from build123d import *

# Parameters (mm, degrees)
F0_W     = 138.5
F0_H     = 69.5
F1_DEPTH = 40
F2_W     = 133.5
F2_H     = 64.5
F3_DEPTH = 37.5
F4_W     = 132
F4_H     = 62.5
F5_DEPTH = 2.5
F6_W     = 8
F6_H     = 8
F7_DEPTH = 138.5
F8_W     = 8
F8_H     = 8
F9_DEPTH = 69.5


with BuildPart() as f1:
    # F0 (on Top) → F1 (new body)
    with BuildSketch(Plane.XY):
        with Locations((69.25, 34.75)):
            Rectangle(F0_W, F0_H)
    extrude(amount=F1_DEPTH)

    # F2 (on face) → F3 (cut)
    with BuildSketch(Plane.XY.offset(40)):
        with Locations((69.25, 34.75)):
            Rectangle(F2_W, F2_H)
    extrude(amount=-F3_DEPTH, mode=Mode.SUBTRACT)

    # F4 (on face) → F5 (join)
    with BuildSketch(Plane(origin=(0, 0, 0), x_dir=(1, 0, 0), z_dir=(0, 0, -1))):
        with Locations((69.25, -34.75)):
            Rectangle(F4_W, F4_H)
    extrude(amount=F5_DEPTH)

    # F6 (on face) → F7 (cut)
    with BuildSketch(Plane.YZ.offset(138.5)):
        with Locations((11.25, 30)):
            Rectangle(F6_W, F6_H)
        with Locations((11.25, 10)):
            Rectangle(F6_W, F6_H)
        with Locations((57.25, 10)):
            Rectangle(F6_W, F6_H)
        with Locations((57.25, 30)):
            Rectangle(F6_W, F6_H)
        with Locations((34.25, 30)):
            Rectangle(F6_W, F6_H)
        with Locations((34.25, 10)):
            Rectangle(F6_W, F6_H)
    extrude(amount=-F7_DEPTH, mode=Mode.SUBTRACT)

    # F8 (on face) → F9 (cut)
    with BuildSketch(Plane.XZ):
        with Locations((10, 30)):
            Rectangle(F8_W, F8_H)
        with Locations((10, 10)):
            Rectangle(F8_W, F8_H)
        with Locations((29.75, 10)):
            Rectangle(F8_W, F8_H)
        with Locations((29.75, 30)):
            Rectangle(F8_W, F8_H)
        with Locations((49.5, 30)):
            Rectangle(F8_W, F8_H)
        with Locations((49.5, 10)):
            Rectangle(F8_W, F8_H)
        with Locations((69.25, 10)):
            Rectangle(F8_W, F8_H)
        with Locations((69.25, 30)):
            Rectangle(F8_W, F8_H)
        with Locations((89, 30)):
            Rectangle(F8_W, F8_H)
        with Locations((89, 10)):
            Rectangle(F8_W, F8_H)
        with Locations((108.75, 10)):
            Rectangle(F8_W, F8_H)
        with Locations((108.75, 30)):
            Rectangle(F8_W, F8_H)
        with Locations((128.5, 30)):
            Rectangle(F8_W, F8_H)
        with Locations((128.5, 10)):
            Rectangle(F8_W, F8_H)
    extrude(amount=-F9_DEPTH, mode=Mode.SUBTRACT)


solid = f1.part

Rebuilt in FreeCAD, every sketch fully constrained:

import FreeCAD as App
import Part
import Sketcher

doc = App.newDocument("Part")
body = doc.addObject("PartDesign::Body", "Body")

sketch1 = body.newObject("Sketcher::SketchObject", "Sketch")
sketch1.AttachmentSupport = (doc.getObject("XY_Plane"), [""])
sketch1.MapMode = "FlatFace"
sketch1.addGeometry([
    Part.LineSegment(App.Vector(0, 70, 0), App.Vector(0, 0, 0)),
    Part.LineSegment(App.Vector(0, 0, 0), App.Vector(138, 0, 0)),
    Part.LineSegment(App.Vector(138, 0, 0), App.Vector(138, 70, 0)),
    Part.LineSegment(App.Vector(138, 70, 0), App.Vector(0, 70, 0)),
], False)
sketch1.addConstraint([
    Sketcher.Constraint("Coincident", 0, 2, 1, 1),
    Sketcher.Constraint("Coincident", 1, 2, 2, 1),
    Sketcher.Constraint("Coincident", 2, 2, 3, 1),
    Sketcher.Constraint("Coincident", 3, 2, 0, 1),
    Sketcher.Constraint("Vertical", 0),
    Sketcher.Constraint("Horizontal", 1),
    Sketcher.Constraint("Vertical", 2),
    Sketcher.Constraint("Horizontal", 3),
    Sketcher.Constraint("Coincident", 0, 2, -1, 1),
    Sketcher.Constraint("DistanceX", 1, 1, 1, 2, 138.5),
    Sketcher.Constraint("DistanceY", 0, 2, 0, 1, 69.5),
])
pad1 = body.newObject("PartDesign::Pad", "Pad")
pad1.Profile = sketch1
pad1.Length = 40

sketch2 = body.newObject("Sketcher::SketchObject", "Sketch001")
sketch2.AttachmentSupport = (doc.getObject("XY_Plane"), [""])
sketch2.MapMode = "FlatFace"
sketch2.AttachmentOffset = App.Placement(App.Vector(0, 0, 40), App.Rotation())
sketch2.addGeometry([
    Part.LineSegment(App.Vector(2, 67, 0), App.Vector(2, 2, 0)),
    Part.LineSegment(App.Vector(2, 2, 0), App.Vector(136, 2, 0)),
    Part.LineSegment(App.Vector(136, 2, 0), App.Vector(136, 67, 0)),
    Part.LineSegment(App.Vector(136, 67, 0), App.Vector(2, 67, 0)),
], False)
sketch2.addConstraint([
    Sketcher.Constraint("Coincident", 0, 2, 1, 1),
    Sketcher.Constraint("Coincident", 1, 2, 2, 1),
    Sketcher.Constraint("Coincident", 2, 2, 3, 1),
    Sketcher.Constraint("Coincident", 3, 2, 0, 1),
    Sketcher.Constraint("Vertical", 0),
    Sketcher.Constraint("Horizontal", 1),
    Sketcher.Constraint("Vertical", 2),
    Sketcher.Constraint("Horizontal", 3),
    Sketcher.Constraint("DistanceX", 1, 1, 1, 2, 133.5),
    Sketcher.Constraint("DistanceY", 0, 2, 0, 1, 64.5),
    Sketcher.Constraint("DistanceX", -1, 1, 1, 2, 136.0),
    Sketcher.Constraint("DistanceY", -1, 1, 2, 2, 67.0),
])
pocket1 = body.newObject("PartDesign::Pocket", "Pocket")
pocket1.Profile = sketch2
pocket1.Length = 37.5

sketch3 = body.newObject("Sketcher::SketchObject", "Sketch002")
sketch3.AttachmentSupport = (doc.getObject("XY_Plane"), [""])
sketch3.MapMode = "FlatFace"
sketch3.addGeometry([
    Part.LineSegment(App.Vector(3, 4, 0), App.Vector(3, 66, 0)),
    Part.LineSegment(App.Vector(3, 66, 0), App.Vector(135, 66, 0)),
    Part.LineSegment(App.Vector(135, 66, 0), App.Vector(135, 4, 0)),
    Part.LineSegment(App.Vector(135, 4, 0), App.Vector(3, 4, 0)),
], False)
sketch3.addConstraint([
    Sketcher.Constraint("Coincident", 0, 2, 1, 1),
    Sketcher.Constraint("Coincident", 1, 2, 2, 1),
    Sketcher.Constraint("Coincident", 2, 2, 3, 1),
    Sketcher.Constraint("Coincident", 3, 2, 0, 1),
    Sketcher.Constraint("Vertical", 0),
    Sketcher.Constraint("Horizontal", 1),
    Sketcher.Constraint("Vertical", 2),
    Sketcher.Constraint("Horizontal", 3),
    Sketcher.Constraint("DistanceX", 1, 1, 1, 2, 132.0),
    Sketcher.Constraint("DistanceY", 0, 1, 0, 2, 62.5),
    Sketcher.Constraint("DistanceY", -1, 1, 0, 2, 66.0),
    Sketcher.Constraint("DistanceX", -1, 1, 0, 2, 3.25),
])
pad2 = body.newObject("PartDesign::Pad", "Pad001")
pad2.Profile = sketch3
pad2.Length = 2.5
pad2.Reversed = True

sketch4 = body.newObject("Sketcher::SketchObject", "Sketch003")
sketch4.AttachmentSupport = (doc.getObject("YZ_Plane"), [""])
sketch4.MapMode = "FlatFace"
sketch4.AttachmentOffset = App.Placement(App.Vector(0, 0, 138.5), App.Rotation())
sketch4.addGeometry([
    Part.LineSegment(App.Vector(7, 34, 0), App.Vector(7, 26, 0)),
    Part.LineSegment(App.Vector(7, 26, 0), App.Vector(15, 26, 0)),
    Part.LineSegment(App.Vector(15, 26, 0), App.Vector(15, 34, 0)),
    Part.LineSegment(App.Vector(15, 34, 0), App.Vector(7, 34, 0)),
    Part.LineSegment(App.Vector(7, 14, 0), App.Vector(7, 6, 0)),
    Part.LineSegment(App.Vector(7, 6, 0), App.Vector(15, 6, 0)),
    Part.LineSegment(App.Vector(15, 6, 0), App.Vector(15, 14, 0)),
    Part.LineSegment(App.Vector(15, 14, 0), App.Vector(7, 14, 0)),
    Part.LineSegment(App.Vector(53, 14, 0), App.Vector(53, 6, 0)),
    Part.LineSegment(App.Vector(53, 6, 0), App.Vector(61, 6, 0)),
    Part.LineSegment(App.Vector(61, 6, 0), App.Vector(61, 14, 0)),
    Part.LineSegment(App.Vector(61, 14, 0), App.Vector(53, 14, 0)),
    Part.LineSegment(App.Vector(53, 34, 0), App.Vector(53, 26, 0)),
    Part.LineSegment(App.Vector(53, 26, 0), App.Vector(61, 26, 0)),
    Part.LineSegment(App.Vector(61, 26, 0), App.Vector(61, 34, 0)),
    Part.LineSegment(App.Vector(61, 34, 0), App.Vector(53, 34, 0)),
    Part.LineSegment(App.Vector(30, 34, 0), App.Vector(30, 26, 0)),
    Part.LineSegment(App.Vector(30, 26, 0), App.Vector(38, 26, 0)),
    Part.LineSegment(App.Vector(38, 26, 0), App.Vector(38, 34, 0)),
    Part.LineSegment(App.Vector(38, 34, 0), App.Vector(30, 34, 0)),
    Part.LineSegment(App.Vector(30, 14, 0), App.Vector(30, 6, 0)),
    Part.LineSegment(App.Vector(30, 6, 0), App.Vector(38, 6, 0)),
    Part.LineSegment(App.Vector(38, 6, 0), App.Vector(38, 14, 0)),
    Part.LineSegment(App.Vector(38, 14, 0), App.Vector(30, 14, 0)),
], False)
sketch4.addConstraint([
    Sketcher.Constraint("Coincident", 0, 2, 1, 1),
    Sketcher.Constraint("Coincident", 1, 2, 2, 1),
    Sketcher.Constraint("Coincident", 2, 2, 3, 1),
    Sketcher.Constraint("Coincident", 3, 2, 0, 1),
    Sketcher.Constraint("Coincident", 4, 2, 5, 1),
    Sketcher.Constraint("Coincident", 5, 2, 6, 1),
    Sketcher.Constraint("Coincident", 6, 2, 7, 1),
    Sketcher.Constraint("Coincident", 7, 2, 4, 1),
    Sketcher.Constraint("Coincident", 8, 2, 9, 1),
    Sketcher.Constraint("Coincident", 9, 2, 10, 1),
    Sketcher.Constraint("Coincident", 10, 2, 11, 1),
    Sketcher.Constraint("Coincident", 11, 2, 8, 1),
    Sketcher.Constraint("Coincident", 12, 2, 13, 1),
    Sketcher.Constraint("Coincident", 13, 2, 14, 1),
    Sketcher.Constraint("Coincident", 14, 2, 15, 1),
    Sketcher.Constraint("Coincident", 15, 2, 12, 1),
    Sketcher.Constraint("Coincident", 16, 2, 17, 1),
    Sketcher.Constraint("Coincident", 17, 2, 18, 1),
    Sketcher.Constraint("Coincident", 18, 2, 19, 1),
    Sketcher.Constraint("Coincident", 19, 2, 16, 1),
    Sketcher.Constraint("Coincident", 20, 2, 21, 1),
    Sketcher.Constraint("Coincident", 21, 2, 22, 1),
    Sketcher.Constraint("Coincident", 22, 2, 23, 1),
    Sketcher.Constraint("Coincident", 23, 2, 20, 1),
    Sketcher.Constraint("Vertical", 0),
    Sketcher.Constraint("Horizontal", 1),
    Sketcher.Constraint("Vertical", 2),
    Sketcher.Constraint("Horizontal", 3),
    Sketcher.Constraint("Vertical", 4),
    Sketcher.Constraint("Horizontal", 5),
    Sketcher.Constraint("Vertical", 6),
    Sketcher.Constraint("Horizontal", 7),
    Sketcher.Constraint("Vertical", 8),
    Sketcher.Constraint("Horizontal", 9),
    Sketcher.Constraint("Vertical", 10),
    Sketcher.Constraint("Horizontal", 11),
    Sketcher.Constraint("Vertical", 12),
    Sketcher.Constraint("Horizontal", 13),
    Sketcher.Constraint("Vertical", 14),
    Sketcher.Constraint("Horizontal", 15),
    Sketcher.Constraint("Vertical", 16),
    Sketcher.Constraint("Horizontal", 17),
    Sketcher.Constraint("Vertical", 18),
    Sketcher.Constraint("Horizontal", 19),
    Sketcher.Constraint("Vertical", 20),
    Sketcher.Constraint("Horizontal", 21),
    Sketcher.Constraint("Vertical", 22),
    Sketcher.Constraint("Horizontal", 23),
    Sketcher.Constraint("Horizontal", 5, 2, 8, 2),
    Sketcher.Constraint("Horizontal", 7, 2, 10, 2),
    Sketcher.Constraint("Horizontal", 1, 2, 12, 2),
    Sketcher.Constraint("Horizontal", 3, 2, 14, 2),
    Sketcher.Constraint("Horizontal", 13, 2, 16, 2),
    Sketcher.Constraint("Horizontal", 15, 2, 18, 2),
    Sketcher.Constraint("Horizontal", 9, 2, 20, 2),
    Sketcher.Constraint("Horizontal", 11, 2, 22, 2),
    Sketcher.Constraint("Vertical", 3, 2, 4, 2),
    Sketcher.Constraint("Vertical", 2, 2, 5, 2),
    Sketcher.Constraint("Vertical", 11, 2, 12, 2),
    Sketcher.Constraint("Vertical", 10, 2, 13, 2),
    Sketcher.Constraint("Vertical", 19, 2, 20, 2),
    Sketcher.Constraint("Vertical", 18, 2, 21, 2),
    Sketcher.Constraint("Equal", 7, 9),
    Sketcher.Constraint("Equal", 15, 17),
    Sketcher.Constraint("Equal", 23, 0),
    Sketcher.Constraint("Equal", 2, 4),
    Sketcher.Constraint("DistanceX", 1, 1, 1, 2, 8.0),
    Sketcher.Constraint("DistanceY", -1, 1, 0, 2, 26.0),
    Sketcher.Constraint("DistanceY", -1, 1, 4, 2, 6.0),
    Sketcher.Constraint("DistanceX", 5, 2, 8, 2, 38.0),
    Sketcher.Constraint("DistanceX", 1, 2, 16, 2, 15.0),
    Sketcher.Constraint("DistanceX", -1, 1, 0, 2, 7.25),
])
pocket2 = body.newObject("PartDesign::Pocket", "Pocket001")
pocket2.Profile = sketch4
pocket2.Length = 138.5

sketch5 = body.newObject("Sketcher::SketchObject", "Sketch004")
sketch5.AttachmentSupport = (doc.getObject("XZ_Plane"), [""])
sketch5.MapMode = "FlatFace"
sketch5.addGeometry([
    Part.LineSegment(App.Vector(6, 34, 0), App.Vector(6, 26, 0)),
    Part.LineSegment(App.Vector(6, 26, 0), App.Vector(14, 26, 0)),
    Part.LineSegment(App.Vector(14, 26, 0), App.Vector(14, 34, 0)),
    Part.LineSegment(App.Vector(14, 34, 0), App.Vector(6, 34, 0)),
    Part.LineSegment(App.Vector(6, 14, 0), App.Vector(6, 6, 0)),
    Part.LineSegment(App.Vector(6, 6, 0), App.Vector(14, 6, 0)),
    Part.LineSegment(App.Vector(14, 6, 0), App.Vector(14, 14, 0)),
    Part.LineSegment(App.Vector(14, 14, 0), App.Vector(6, 14, 0)),
    Part.LineSegment(App.Vector(26, 14, 0), App.Vector(26, 6, 0)),
    Part.LineSegment(App.Vector(26, 6, 0), App.Vector(34, 6, 0)),
    Part.LineSegment(App.Vector(34, 6, 0), App.Vector(34, 14, 0)),
    Part.LineSegment(App.Vector(34, 14, 0), App.Vector(26, 14, 0)),
    Part.LineSegment(App.Vector(26, 34, 0), App.Vector(26, 26, 0)),
    Part.LineSegment(App.Vector(26, 26, 0), App.Vector(34, 26, 0)),
    Part.LineSegment(App.Vector(34, 26, 0), App.Vector(34, 34, 0)),
    Part.LineSegment(App.Vector(34, 34, 0), App.Vector(26, 34, 0)),
    Part.LineSegment(App.Vector(46, 34, 0), App.Vector(46, 26, 0)),
    Part.LineSegment(App.Vector(46, 26, 0), App.Vector(54, 26, 0)),
    Part.LineSegment(App.Vector(54, 26, 0), App.Vector(54, 34, 0)),
    Part.LineSegment(App.Vector(54, 34, 0), App.Vector(46, 34, 0)),
    Part.LineSegment(App.Vector(46, 14, 0), App.Vector(46, 6, 0)),
    Part.LineSegment(App.Vector(46, 6, 0), App.Vector(54, 6, 0)),
    Part.LineSegment(App.Vector(54, 6, 0), App.Vector(54, 14, 0)),
    Part.LineSegment(App.Vector(54, 14, 0), App.Vector(46, 14, 0)),
    Part.LineSegment(App.Vector(65, 14, 0), App.Vector(65, 6, 0)),
    Part.LineSegment(App.Vector(65, 6, 0), App.Vector(73, 6, 0)),
    Part.LineSegment(App.Vector(73, 6, 0), App.Vector(73, 14, 0)),
    Part.LineSegment(App.Vector(73, 14, 0), App.Vector(65, 14, 0)),
    Part.LineSegment(App.Vector(65, 34, 0), App.Vector(65, 26, 0)),
    Part.LineSegment(App.Vector(65, 26, 0), App.Vector(73, 26, 0)),
    Part.LineSegment(App.Vector(73, 26, 0), App.Vector(73, 34, 0)),
    Part.LineSegment(App.Vector(73, 34, 0), App.Vector(65, 34, 0)),
    Part.LineSegment(App.Vector(85, 34, 0), App.Vector(85, 26, 0)),
    Part.LineSegment(App.Vector(85, 26, 0), App.Vector(93, 26, 0)),
    Part.LineSegment(App.Vector(93, 26, 0), App.Vector(93, 34, 0)),
    Part.LineSegment(App.Vector(93, 34, 0), App.Vector(85, 34, 0)),
    Part.LineSegment(App.Vector(85, 14, 0), App.Vector(85, 6, 0)),
    Part.LineSegment(App.Vector(85, 6, 0), App.Vector(93, 6, 0)),
    Part.LineSegment(App.Vector(93, 6, 0), App.Vector(93, 14, 0)),
    Part.LineSegment(App.Vector(93, 14, 0), App.Vector(85, 14, 0)),
    Part.LineSegment(App.Vector(105, 14, 0), App.Vector(105, 6, 0)),
    Part.LineSegment(App.Vector(105, 6, 0), App.Vector(113, 6, 0)),
    Part.LineSegment(App.Vector(113, 6, 0), App.Vector(113, 14, 0)),
    Part.LineSegment(App.Vector(113, 14, 0), App.Vector(105, 14, 0)),
    Part.LineSegment(App.Vector(105, 34, 0), App.Vector(105, 26, 0)),
    Part.LineSegment(App.Vector(105, 26, 0), App.Vector(113, 26, 0)),
    Part.LineSegment(App.Vector(113, 26, 0), App.Vector(113, 34, 0)),
    Part.LineSegment(App.Vector(113, 34, 0), App.Vector(105, 34, 0)),
    Part.LineSegment(App.Vector(124, 34, 0), App.Vector(124, 26, 0)),
    Part.LineSegment(App.Vector(124, 26, 0), App.Vector(132, 26, 0)),
    Part.LineSegment(App.Vector(132, 26, 0), App.Vector(132, 34, 0)),
    Part.LineSegment(App.Vector(132, 34, 0), App.Vector(124, 34, 0)),
    Part.LineSegment(App.Vector(124, 14, 0), App.Vector(124, 6, 0)),
    Part.LineSegment(App.Vector(124, 6, 0), App.Vector(132, 6, 0)),
    Part.LineSegment(App.Vector(132, 6, 0), App.Vector(132, 14, 0)),
    Part.LineSegment(App.Vector(132, 14, 0), App.Vector(124, 14, 0)),
], False)
sketch5.addConstraint([
    Sketcher.Constraint("Coincident", 0, 2, 1, 1),
    Sketcher.Constraint("Coincident", 1, 2, 2, 1),
    Sketcher.Constraint("Coincident", 2, 2, 3, 1),
    Sketcher.Constraint("Coincident", 3, 2, 0, 1),
    Sketcher.Constraint("Coincident", 4, 2, 5, 1),
    Sketcher.Constraint("Coincident", 5, 2, 6, 1),
    Sketcher.Constraint("Coincident", 6, 2, 7, 1),
    Sketcher.Constraint("Coincident", 7, 2, 4, 1),
    Sketcher.Constraint("Coincident", 8, 2, 9, 1),
    Sketcher.Constraint("Coincident", 9, 2, 10, 1),
    Sketcher.Constraint("Coincident", 10, 2, 11, 1),
    Sketcher.Constraint("Coincident", 11, 2, 8, 1),
    Sketcher.Constraint("Coincident", 12, 2, 13, 1),
    Sketcher.Constraint("Coincident", 13, 2, 14, 1),
    Sketcher.Constraint("Coincident", 14, 2, 15, 1),
    Sketcher.Constraint("Coincident", 15, 2, 12, 1),
    Sketcher.Constraint("Coincident", 16, 2, 17, 1),
    Sketcher.Constraint("Coincident", 17, 2, 18, 1),
    Sketcher.Constraint("Coincident", 18, 2, 19, 1),
    Sketcher.Constraint("Coincident", 19, 2, 16, 1),
    Sketcher.Constraint("Coincident", 20, 2, 21, 1),
    Sketcher.Constraint("Coincident", 21, 2, 22, 1),
    Sketcher.Constraint("Coincident", 22, 2, 23, 1),
    Sketcher.Constraint("Coincident", 23, 2, 20, 1),
    Sketcher.Constraint("Coincident", 24, 2, 25, 1),
    Sketcher.Constraint("Coincident", 25, 2, 26, 1),
    Sketcher.Constraint("Coincident", 26, 2, 27, 1),
    Sketcher.Constraint("Coincident", 27, 2, 24, 1),
    Sketcher.Constraint("Coincident", 28, 2, 29, 1),
    Sketcher.Constraint("Coincident", 29, 2, 30, 1),
    Sketcher.Constraint("Coincident", 30, 2, 31, 1),
    Sketcher.Constraint("Coincident", 31, 2, 28, 1),
    Sketcher.Constraint("Coincident", 32, 2, 33, 1),
    Sketcher.Constraint("Coincident", 33, 2, 34, 1),
    Sketcher.Constraint("Coincident", 34, 2, 35, 1),
    Sketcher.Constraint("Coincident", 35, 2, 32, 1),
    Sketcher.Constraint("Coincident", 36, 2, 37, 1),
    Sketcher.Constraint("Coincident", 37, 2, 38, 1),
    Sketcher.Constraint("Coincident", 38, 2, 39, 1),
    Sketcher.Constraint("Coincident", 39, 2, 36, 1),
    Sketcher.Constraint("Coincident", 40, 2, 41, 1),
    Sketcher.Constraint("Coincident", 41, 2, 42, 1),
    Sketcher.Constraint("Coincident", 42, 2, 43, 1),
    Sketcher.Constraint("Coincident", 43, 2, 40, 1),
    Sketcher.Constraint("Coincident", 44, 2, 45, 1),
    Sketcher.Constraint("Coincident", 45, 2, 46, 1),
    Sketcher.Constraint("Coincident", 46, 2, 47, 1),
    Sketcher.Constraint("Coincident", 47, 2, 44, 1),
    Sketcher.Constraint("Coincident", 48, 2, 49, 1),
    Sketcher.Constraint("Coincident", 49, 2, 50, 1),
    Sketcher.Constraint("Coincident", 50, 2, 51, 1),
    Sketcher.Constraint("Coincident", 51, 2, 48, 1),
    Sketcher.Constraint("Coincident", 52, 2, 53, 1),
    Sketcher.Constraint("Coincident", 53, 2, 54, 1),
    Sketcher.Constraint("Coincident", 54, 2, 55, 1),
    Sketcher.Constraint("Coincident", 55, 2, 52, 1),
    Sketcher.Constraint("Vertical", 0),
    Sketcher.Constraint("Horizontal", 1),
    Sketcher.Constraint("Vertical", 2),
    Sketcher.Constraint("Horizontal", 3),
    Sketcher.Constraint("Vertical", 4),
    Sketcher.Constraint("Horizontal", 5),
    Sketcher.Constraint("Vertical", 6),
    Sketcher.Constraint("Horizontal", 7),
    Sketcher.Constraint("Vertical", 8),
    Sketcher.Constraint("Horizontal", 9),
    Sketcher.Constraint("Vertical", 10),
    Sketcher.Constraint("Horizontal", 11),
    Sketcher.Constraint("Vertical", 12),
    Sketcher.Constraint("Horizontal", 13),
    Sketcher.Constraint("Vertical", 14),
    Sketcher.Constraint("Horizontal", 15),
    Sketcher.Constraint("Vertical", 16),
    Sketcher.Constraint("Horizontal", 17),
    Sketcher.Constraint("Vertical", 18),
    Sketcher.Constraint("Horizontal", 19),
    Sketcher.Constraint("Vertical", 20),
    Sketcher.Constraint("Horizontal", 21),
    Sketcher.Constraint("Vertical", 22),
    Sketcher.Constraint("Horizontal", 23),
    Sketcher.Constraint("Vertical", 24),
    Sketcher.Constraint("Horizontal", 25),
    Sketcher.Constraint("Vertical", 26),
    Sketcher.Constraint("Horizontal", 27),
    Sketcher.Constraint("Vertical", 28),
    Sketcher.Constraint("Horizontal", 29),
    Sketcher.Constraint("Vertical", 30),
    Sketcher.Constraint("Horizontal", 31),
    Sketcher.Constraint("Vertical", 32),
    Sketcher.Constraint("Horizontal", 33),
    Sketcher.Constraint("Vertical", 34),
    Sketcher.Constraint("Horizontal", 35),
    Sketcher.Constraint("Vertical", 36),
    Sketcher.Constraint("Horizontal", 37),
    Sketcher.Constraint("Vertical", 38),
    Sketcher.Constraint("Horizontal", 39),
    Sketcher.Constraint("Vertical", 40),
    Sketcher.Constraint("Horizontal", 41),
    Sketcher.Constraint("Vertical", 42),
    Sketcher.Constraint("Horizontal", 43),
    Sketcher.Constraint("Vertical", 44),
    Sketcher.Constraint("Horizontal", 45),
    Sketcher.Constraint("Vertical", 46),
    Sketcher.Constraint("Horizontal", 47),
    Sketcher.Constraint("Vertical", 48),
    Sketcher.Constraint("Horizontal", 49),
    Sketcher.Constraint("Vertical", 50),
    Sketcher.Constraint("Horizontal", 51),
    Sketcher.Constraint("Vertical", 52),
    Sketcher.Constraint("Horizontal", 53),
    Sketcher.Constraint("Vertical", 54),
    Sketcher.Constraint("Horizontal", 55),
    Sketcher.Constraint("Horizontal", 5, 2, 8, 2),
    Sketcher.Constraint("Horizontal", 7, 2, 10, 2),
    Sketcher.Constraint("Horizontal", 1, 2, 12, 2),
    Sketcher.Constraint("Horizontal", 3, 2, 14, 2),
    Sketcher.Constraint("Horizontal", 13, 2, 16, 2),
    Sketcher.Constraint("Horizontal", 15, 2, 18, 2),
    Sketcher.Constraint("Horizontal", 9, 2, 20, 2),
    Sketcher.Constraint("Horizontal", 11, 2, 22, 2),
    Sketcher.Constraint("Horizontal", 21, 2, 24, 2),
    Sketcher.Constraint("Horizontal", 23, 2, 26, 2),
    Sketcher.Constraint("Horizontal", 17, 2, 28, 2),
    Sketcher.Constraint("Horizontal", 19, 2, 30, 2),
    Sketcher.Constraint("Horizontal", 29, 2, 32, 2),
    Sketcher.Constraint("Horizontal", 31, 2, 34, 2),
    Sketcher.Constraint("Horizontal", 25, 2, 36, 2),
    Sketcher.Constraint("Horizontal", 27, 2, 38, 2),
    Sketcher.Constraint("Horizontal", 37, 2, 40, 2),
    Sketcher.Constraint("Horizontal", 39, 2, 42, 2),
    Sketcher.Constraint("Horizontal", 33, 2, 44, 2),
    Sketcher.Constraint("Horizontal", 35, 2, 46, 2),
    Sketcher.Constraint("Horizontal", 45, 2, 48, 2),
    Sketcher.Constraint("Horizontal", 47, 2, 50, 2),
    Sketcher.Constraint("Horizontal", 41, 2, 52, 2),
    Sketcher.Constraint("Horizontal", 43, 2, 54, 2),
    Sketcher.Constraint("Vertical", 3, 2, 4, 2),
    Sketcher.Constraint("Vertical", 2, 2, 5, 2),
    Sketcher.Constraint("Vertical", 11, 2, 12, 2),
    Sketcher.Constraint("Vertical", 10, 2, 13, 2),
    Sketcher.Constraint("Vertical", 19, 2, 20, 2),
    Sketcher.Constraint("Vertical", 18, 2, 21, 2),
    Sketcher.Constraint("Vertical", 27, 2, 28, 2),
    Sketcher.Constraint("Vertical", 26, 2, 29, 2),
    Sketcher.Constraint("Vertical", 35, 2, 36, 2),
    Sketcher.Constraint("Vertical", 34, 2, 37, 2),
    Sketcher.Constraint("Vertical", 43, 2, 44, 2),
    Sketcher.Constraint("Vertical", 42, 2, 45, 2),
    Sketcher.Constraint("Vertical", 51, 2, 52, 2),
    Sketcher.Constraint("Vertical", 50, 2, 53, 2),
    Sketcher.Constraint("Equal", 7, 9),
    Sketcher.Constraint("Equal", 15, 17),
    Sketcher.Constraint("Equal", 23, 25),
    Sketcher.Constraint("Equal", 31, 33),
    Sketcher.Constraint("Equal", 39, 41),
    Sketcher.Constraint("Equal", 47, 49),
    Sketcher.Constraint("Equal", 55, 0),
    Sketcher.Constraint("Equal", 2, 4),
    Sketcher.Constraint("DistanceX", 1, 1, 1, 2, 8.0),
    Sketcher.Constraint("DistanceX", -1, 1, 0, 2, 6.0),
    Sketcher.Constraint("DistanceY", -1, 1, 0, 2, 26.0),
    Sketcher.Constraint("DistanceY", -1, 1, 4, 2, 6.0),
    Sketcher.Constraint("DistanceX", -1, 1, 32, 2, 85.0),
    Sketcher.Constraint("DistanceX", -1, 1, 16, 2, 45.5),
    Sketcher.Constraint("DistanceX", -1, 1, 48, 2, 124.5),
    Sketcher.Constraint("DistanceX", -1, 1, 8, 2, 25.75),
    Sketcher.Constraint("DistanceX", -1, 1, 24, 2, 65.25),
    Sketcher.Constraint("DistanceX", -1, 1, 40, 2, 104.75),
])
pocket3 = body.newObject("PartDesign::Pocket", "Pocket002")
pocket3.Profile = sketch5
pocket3.Length = 69.5

doc.recompute()
